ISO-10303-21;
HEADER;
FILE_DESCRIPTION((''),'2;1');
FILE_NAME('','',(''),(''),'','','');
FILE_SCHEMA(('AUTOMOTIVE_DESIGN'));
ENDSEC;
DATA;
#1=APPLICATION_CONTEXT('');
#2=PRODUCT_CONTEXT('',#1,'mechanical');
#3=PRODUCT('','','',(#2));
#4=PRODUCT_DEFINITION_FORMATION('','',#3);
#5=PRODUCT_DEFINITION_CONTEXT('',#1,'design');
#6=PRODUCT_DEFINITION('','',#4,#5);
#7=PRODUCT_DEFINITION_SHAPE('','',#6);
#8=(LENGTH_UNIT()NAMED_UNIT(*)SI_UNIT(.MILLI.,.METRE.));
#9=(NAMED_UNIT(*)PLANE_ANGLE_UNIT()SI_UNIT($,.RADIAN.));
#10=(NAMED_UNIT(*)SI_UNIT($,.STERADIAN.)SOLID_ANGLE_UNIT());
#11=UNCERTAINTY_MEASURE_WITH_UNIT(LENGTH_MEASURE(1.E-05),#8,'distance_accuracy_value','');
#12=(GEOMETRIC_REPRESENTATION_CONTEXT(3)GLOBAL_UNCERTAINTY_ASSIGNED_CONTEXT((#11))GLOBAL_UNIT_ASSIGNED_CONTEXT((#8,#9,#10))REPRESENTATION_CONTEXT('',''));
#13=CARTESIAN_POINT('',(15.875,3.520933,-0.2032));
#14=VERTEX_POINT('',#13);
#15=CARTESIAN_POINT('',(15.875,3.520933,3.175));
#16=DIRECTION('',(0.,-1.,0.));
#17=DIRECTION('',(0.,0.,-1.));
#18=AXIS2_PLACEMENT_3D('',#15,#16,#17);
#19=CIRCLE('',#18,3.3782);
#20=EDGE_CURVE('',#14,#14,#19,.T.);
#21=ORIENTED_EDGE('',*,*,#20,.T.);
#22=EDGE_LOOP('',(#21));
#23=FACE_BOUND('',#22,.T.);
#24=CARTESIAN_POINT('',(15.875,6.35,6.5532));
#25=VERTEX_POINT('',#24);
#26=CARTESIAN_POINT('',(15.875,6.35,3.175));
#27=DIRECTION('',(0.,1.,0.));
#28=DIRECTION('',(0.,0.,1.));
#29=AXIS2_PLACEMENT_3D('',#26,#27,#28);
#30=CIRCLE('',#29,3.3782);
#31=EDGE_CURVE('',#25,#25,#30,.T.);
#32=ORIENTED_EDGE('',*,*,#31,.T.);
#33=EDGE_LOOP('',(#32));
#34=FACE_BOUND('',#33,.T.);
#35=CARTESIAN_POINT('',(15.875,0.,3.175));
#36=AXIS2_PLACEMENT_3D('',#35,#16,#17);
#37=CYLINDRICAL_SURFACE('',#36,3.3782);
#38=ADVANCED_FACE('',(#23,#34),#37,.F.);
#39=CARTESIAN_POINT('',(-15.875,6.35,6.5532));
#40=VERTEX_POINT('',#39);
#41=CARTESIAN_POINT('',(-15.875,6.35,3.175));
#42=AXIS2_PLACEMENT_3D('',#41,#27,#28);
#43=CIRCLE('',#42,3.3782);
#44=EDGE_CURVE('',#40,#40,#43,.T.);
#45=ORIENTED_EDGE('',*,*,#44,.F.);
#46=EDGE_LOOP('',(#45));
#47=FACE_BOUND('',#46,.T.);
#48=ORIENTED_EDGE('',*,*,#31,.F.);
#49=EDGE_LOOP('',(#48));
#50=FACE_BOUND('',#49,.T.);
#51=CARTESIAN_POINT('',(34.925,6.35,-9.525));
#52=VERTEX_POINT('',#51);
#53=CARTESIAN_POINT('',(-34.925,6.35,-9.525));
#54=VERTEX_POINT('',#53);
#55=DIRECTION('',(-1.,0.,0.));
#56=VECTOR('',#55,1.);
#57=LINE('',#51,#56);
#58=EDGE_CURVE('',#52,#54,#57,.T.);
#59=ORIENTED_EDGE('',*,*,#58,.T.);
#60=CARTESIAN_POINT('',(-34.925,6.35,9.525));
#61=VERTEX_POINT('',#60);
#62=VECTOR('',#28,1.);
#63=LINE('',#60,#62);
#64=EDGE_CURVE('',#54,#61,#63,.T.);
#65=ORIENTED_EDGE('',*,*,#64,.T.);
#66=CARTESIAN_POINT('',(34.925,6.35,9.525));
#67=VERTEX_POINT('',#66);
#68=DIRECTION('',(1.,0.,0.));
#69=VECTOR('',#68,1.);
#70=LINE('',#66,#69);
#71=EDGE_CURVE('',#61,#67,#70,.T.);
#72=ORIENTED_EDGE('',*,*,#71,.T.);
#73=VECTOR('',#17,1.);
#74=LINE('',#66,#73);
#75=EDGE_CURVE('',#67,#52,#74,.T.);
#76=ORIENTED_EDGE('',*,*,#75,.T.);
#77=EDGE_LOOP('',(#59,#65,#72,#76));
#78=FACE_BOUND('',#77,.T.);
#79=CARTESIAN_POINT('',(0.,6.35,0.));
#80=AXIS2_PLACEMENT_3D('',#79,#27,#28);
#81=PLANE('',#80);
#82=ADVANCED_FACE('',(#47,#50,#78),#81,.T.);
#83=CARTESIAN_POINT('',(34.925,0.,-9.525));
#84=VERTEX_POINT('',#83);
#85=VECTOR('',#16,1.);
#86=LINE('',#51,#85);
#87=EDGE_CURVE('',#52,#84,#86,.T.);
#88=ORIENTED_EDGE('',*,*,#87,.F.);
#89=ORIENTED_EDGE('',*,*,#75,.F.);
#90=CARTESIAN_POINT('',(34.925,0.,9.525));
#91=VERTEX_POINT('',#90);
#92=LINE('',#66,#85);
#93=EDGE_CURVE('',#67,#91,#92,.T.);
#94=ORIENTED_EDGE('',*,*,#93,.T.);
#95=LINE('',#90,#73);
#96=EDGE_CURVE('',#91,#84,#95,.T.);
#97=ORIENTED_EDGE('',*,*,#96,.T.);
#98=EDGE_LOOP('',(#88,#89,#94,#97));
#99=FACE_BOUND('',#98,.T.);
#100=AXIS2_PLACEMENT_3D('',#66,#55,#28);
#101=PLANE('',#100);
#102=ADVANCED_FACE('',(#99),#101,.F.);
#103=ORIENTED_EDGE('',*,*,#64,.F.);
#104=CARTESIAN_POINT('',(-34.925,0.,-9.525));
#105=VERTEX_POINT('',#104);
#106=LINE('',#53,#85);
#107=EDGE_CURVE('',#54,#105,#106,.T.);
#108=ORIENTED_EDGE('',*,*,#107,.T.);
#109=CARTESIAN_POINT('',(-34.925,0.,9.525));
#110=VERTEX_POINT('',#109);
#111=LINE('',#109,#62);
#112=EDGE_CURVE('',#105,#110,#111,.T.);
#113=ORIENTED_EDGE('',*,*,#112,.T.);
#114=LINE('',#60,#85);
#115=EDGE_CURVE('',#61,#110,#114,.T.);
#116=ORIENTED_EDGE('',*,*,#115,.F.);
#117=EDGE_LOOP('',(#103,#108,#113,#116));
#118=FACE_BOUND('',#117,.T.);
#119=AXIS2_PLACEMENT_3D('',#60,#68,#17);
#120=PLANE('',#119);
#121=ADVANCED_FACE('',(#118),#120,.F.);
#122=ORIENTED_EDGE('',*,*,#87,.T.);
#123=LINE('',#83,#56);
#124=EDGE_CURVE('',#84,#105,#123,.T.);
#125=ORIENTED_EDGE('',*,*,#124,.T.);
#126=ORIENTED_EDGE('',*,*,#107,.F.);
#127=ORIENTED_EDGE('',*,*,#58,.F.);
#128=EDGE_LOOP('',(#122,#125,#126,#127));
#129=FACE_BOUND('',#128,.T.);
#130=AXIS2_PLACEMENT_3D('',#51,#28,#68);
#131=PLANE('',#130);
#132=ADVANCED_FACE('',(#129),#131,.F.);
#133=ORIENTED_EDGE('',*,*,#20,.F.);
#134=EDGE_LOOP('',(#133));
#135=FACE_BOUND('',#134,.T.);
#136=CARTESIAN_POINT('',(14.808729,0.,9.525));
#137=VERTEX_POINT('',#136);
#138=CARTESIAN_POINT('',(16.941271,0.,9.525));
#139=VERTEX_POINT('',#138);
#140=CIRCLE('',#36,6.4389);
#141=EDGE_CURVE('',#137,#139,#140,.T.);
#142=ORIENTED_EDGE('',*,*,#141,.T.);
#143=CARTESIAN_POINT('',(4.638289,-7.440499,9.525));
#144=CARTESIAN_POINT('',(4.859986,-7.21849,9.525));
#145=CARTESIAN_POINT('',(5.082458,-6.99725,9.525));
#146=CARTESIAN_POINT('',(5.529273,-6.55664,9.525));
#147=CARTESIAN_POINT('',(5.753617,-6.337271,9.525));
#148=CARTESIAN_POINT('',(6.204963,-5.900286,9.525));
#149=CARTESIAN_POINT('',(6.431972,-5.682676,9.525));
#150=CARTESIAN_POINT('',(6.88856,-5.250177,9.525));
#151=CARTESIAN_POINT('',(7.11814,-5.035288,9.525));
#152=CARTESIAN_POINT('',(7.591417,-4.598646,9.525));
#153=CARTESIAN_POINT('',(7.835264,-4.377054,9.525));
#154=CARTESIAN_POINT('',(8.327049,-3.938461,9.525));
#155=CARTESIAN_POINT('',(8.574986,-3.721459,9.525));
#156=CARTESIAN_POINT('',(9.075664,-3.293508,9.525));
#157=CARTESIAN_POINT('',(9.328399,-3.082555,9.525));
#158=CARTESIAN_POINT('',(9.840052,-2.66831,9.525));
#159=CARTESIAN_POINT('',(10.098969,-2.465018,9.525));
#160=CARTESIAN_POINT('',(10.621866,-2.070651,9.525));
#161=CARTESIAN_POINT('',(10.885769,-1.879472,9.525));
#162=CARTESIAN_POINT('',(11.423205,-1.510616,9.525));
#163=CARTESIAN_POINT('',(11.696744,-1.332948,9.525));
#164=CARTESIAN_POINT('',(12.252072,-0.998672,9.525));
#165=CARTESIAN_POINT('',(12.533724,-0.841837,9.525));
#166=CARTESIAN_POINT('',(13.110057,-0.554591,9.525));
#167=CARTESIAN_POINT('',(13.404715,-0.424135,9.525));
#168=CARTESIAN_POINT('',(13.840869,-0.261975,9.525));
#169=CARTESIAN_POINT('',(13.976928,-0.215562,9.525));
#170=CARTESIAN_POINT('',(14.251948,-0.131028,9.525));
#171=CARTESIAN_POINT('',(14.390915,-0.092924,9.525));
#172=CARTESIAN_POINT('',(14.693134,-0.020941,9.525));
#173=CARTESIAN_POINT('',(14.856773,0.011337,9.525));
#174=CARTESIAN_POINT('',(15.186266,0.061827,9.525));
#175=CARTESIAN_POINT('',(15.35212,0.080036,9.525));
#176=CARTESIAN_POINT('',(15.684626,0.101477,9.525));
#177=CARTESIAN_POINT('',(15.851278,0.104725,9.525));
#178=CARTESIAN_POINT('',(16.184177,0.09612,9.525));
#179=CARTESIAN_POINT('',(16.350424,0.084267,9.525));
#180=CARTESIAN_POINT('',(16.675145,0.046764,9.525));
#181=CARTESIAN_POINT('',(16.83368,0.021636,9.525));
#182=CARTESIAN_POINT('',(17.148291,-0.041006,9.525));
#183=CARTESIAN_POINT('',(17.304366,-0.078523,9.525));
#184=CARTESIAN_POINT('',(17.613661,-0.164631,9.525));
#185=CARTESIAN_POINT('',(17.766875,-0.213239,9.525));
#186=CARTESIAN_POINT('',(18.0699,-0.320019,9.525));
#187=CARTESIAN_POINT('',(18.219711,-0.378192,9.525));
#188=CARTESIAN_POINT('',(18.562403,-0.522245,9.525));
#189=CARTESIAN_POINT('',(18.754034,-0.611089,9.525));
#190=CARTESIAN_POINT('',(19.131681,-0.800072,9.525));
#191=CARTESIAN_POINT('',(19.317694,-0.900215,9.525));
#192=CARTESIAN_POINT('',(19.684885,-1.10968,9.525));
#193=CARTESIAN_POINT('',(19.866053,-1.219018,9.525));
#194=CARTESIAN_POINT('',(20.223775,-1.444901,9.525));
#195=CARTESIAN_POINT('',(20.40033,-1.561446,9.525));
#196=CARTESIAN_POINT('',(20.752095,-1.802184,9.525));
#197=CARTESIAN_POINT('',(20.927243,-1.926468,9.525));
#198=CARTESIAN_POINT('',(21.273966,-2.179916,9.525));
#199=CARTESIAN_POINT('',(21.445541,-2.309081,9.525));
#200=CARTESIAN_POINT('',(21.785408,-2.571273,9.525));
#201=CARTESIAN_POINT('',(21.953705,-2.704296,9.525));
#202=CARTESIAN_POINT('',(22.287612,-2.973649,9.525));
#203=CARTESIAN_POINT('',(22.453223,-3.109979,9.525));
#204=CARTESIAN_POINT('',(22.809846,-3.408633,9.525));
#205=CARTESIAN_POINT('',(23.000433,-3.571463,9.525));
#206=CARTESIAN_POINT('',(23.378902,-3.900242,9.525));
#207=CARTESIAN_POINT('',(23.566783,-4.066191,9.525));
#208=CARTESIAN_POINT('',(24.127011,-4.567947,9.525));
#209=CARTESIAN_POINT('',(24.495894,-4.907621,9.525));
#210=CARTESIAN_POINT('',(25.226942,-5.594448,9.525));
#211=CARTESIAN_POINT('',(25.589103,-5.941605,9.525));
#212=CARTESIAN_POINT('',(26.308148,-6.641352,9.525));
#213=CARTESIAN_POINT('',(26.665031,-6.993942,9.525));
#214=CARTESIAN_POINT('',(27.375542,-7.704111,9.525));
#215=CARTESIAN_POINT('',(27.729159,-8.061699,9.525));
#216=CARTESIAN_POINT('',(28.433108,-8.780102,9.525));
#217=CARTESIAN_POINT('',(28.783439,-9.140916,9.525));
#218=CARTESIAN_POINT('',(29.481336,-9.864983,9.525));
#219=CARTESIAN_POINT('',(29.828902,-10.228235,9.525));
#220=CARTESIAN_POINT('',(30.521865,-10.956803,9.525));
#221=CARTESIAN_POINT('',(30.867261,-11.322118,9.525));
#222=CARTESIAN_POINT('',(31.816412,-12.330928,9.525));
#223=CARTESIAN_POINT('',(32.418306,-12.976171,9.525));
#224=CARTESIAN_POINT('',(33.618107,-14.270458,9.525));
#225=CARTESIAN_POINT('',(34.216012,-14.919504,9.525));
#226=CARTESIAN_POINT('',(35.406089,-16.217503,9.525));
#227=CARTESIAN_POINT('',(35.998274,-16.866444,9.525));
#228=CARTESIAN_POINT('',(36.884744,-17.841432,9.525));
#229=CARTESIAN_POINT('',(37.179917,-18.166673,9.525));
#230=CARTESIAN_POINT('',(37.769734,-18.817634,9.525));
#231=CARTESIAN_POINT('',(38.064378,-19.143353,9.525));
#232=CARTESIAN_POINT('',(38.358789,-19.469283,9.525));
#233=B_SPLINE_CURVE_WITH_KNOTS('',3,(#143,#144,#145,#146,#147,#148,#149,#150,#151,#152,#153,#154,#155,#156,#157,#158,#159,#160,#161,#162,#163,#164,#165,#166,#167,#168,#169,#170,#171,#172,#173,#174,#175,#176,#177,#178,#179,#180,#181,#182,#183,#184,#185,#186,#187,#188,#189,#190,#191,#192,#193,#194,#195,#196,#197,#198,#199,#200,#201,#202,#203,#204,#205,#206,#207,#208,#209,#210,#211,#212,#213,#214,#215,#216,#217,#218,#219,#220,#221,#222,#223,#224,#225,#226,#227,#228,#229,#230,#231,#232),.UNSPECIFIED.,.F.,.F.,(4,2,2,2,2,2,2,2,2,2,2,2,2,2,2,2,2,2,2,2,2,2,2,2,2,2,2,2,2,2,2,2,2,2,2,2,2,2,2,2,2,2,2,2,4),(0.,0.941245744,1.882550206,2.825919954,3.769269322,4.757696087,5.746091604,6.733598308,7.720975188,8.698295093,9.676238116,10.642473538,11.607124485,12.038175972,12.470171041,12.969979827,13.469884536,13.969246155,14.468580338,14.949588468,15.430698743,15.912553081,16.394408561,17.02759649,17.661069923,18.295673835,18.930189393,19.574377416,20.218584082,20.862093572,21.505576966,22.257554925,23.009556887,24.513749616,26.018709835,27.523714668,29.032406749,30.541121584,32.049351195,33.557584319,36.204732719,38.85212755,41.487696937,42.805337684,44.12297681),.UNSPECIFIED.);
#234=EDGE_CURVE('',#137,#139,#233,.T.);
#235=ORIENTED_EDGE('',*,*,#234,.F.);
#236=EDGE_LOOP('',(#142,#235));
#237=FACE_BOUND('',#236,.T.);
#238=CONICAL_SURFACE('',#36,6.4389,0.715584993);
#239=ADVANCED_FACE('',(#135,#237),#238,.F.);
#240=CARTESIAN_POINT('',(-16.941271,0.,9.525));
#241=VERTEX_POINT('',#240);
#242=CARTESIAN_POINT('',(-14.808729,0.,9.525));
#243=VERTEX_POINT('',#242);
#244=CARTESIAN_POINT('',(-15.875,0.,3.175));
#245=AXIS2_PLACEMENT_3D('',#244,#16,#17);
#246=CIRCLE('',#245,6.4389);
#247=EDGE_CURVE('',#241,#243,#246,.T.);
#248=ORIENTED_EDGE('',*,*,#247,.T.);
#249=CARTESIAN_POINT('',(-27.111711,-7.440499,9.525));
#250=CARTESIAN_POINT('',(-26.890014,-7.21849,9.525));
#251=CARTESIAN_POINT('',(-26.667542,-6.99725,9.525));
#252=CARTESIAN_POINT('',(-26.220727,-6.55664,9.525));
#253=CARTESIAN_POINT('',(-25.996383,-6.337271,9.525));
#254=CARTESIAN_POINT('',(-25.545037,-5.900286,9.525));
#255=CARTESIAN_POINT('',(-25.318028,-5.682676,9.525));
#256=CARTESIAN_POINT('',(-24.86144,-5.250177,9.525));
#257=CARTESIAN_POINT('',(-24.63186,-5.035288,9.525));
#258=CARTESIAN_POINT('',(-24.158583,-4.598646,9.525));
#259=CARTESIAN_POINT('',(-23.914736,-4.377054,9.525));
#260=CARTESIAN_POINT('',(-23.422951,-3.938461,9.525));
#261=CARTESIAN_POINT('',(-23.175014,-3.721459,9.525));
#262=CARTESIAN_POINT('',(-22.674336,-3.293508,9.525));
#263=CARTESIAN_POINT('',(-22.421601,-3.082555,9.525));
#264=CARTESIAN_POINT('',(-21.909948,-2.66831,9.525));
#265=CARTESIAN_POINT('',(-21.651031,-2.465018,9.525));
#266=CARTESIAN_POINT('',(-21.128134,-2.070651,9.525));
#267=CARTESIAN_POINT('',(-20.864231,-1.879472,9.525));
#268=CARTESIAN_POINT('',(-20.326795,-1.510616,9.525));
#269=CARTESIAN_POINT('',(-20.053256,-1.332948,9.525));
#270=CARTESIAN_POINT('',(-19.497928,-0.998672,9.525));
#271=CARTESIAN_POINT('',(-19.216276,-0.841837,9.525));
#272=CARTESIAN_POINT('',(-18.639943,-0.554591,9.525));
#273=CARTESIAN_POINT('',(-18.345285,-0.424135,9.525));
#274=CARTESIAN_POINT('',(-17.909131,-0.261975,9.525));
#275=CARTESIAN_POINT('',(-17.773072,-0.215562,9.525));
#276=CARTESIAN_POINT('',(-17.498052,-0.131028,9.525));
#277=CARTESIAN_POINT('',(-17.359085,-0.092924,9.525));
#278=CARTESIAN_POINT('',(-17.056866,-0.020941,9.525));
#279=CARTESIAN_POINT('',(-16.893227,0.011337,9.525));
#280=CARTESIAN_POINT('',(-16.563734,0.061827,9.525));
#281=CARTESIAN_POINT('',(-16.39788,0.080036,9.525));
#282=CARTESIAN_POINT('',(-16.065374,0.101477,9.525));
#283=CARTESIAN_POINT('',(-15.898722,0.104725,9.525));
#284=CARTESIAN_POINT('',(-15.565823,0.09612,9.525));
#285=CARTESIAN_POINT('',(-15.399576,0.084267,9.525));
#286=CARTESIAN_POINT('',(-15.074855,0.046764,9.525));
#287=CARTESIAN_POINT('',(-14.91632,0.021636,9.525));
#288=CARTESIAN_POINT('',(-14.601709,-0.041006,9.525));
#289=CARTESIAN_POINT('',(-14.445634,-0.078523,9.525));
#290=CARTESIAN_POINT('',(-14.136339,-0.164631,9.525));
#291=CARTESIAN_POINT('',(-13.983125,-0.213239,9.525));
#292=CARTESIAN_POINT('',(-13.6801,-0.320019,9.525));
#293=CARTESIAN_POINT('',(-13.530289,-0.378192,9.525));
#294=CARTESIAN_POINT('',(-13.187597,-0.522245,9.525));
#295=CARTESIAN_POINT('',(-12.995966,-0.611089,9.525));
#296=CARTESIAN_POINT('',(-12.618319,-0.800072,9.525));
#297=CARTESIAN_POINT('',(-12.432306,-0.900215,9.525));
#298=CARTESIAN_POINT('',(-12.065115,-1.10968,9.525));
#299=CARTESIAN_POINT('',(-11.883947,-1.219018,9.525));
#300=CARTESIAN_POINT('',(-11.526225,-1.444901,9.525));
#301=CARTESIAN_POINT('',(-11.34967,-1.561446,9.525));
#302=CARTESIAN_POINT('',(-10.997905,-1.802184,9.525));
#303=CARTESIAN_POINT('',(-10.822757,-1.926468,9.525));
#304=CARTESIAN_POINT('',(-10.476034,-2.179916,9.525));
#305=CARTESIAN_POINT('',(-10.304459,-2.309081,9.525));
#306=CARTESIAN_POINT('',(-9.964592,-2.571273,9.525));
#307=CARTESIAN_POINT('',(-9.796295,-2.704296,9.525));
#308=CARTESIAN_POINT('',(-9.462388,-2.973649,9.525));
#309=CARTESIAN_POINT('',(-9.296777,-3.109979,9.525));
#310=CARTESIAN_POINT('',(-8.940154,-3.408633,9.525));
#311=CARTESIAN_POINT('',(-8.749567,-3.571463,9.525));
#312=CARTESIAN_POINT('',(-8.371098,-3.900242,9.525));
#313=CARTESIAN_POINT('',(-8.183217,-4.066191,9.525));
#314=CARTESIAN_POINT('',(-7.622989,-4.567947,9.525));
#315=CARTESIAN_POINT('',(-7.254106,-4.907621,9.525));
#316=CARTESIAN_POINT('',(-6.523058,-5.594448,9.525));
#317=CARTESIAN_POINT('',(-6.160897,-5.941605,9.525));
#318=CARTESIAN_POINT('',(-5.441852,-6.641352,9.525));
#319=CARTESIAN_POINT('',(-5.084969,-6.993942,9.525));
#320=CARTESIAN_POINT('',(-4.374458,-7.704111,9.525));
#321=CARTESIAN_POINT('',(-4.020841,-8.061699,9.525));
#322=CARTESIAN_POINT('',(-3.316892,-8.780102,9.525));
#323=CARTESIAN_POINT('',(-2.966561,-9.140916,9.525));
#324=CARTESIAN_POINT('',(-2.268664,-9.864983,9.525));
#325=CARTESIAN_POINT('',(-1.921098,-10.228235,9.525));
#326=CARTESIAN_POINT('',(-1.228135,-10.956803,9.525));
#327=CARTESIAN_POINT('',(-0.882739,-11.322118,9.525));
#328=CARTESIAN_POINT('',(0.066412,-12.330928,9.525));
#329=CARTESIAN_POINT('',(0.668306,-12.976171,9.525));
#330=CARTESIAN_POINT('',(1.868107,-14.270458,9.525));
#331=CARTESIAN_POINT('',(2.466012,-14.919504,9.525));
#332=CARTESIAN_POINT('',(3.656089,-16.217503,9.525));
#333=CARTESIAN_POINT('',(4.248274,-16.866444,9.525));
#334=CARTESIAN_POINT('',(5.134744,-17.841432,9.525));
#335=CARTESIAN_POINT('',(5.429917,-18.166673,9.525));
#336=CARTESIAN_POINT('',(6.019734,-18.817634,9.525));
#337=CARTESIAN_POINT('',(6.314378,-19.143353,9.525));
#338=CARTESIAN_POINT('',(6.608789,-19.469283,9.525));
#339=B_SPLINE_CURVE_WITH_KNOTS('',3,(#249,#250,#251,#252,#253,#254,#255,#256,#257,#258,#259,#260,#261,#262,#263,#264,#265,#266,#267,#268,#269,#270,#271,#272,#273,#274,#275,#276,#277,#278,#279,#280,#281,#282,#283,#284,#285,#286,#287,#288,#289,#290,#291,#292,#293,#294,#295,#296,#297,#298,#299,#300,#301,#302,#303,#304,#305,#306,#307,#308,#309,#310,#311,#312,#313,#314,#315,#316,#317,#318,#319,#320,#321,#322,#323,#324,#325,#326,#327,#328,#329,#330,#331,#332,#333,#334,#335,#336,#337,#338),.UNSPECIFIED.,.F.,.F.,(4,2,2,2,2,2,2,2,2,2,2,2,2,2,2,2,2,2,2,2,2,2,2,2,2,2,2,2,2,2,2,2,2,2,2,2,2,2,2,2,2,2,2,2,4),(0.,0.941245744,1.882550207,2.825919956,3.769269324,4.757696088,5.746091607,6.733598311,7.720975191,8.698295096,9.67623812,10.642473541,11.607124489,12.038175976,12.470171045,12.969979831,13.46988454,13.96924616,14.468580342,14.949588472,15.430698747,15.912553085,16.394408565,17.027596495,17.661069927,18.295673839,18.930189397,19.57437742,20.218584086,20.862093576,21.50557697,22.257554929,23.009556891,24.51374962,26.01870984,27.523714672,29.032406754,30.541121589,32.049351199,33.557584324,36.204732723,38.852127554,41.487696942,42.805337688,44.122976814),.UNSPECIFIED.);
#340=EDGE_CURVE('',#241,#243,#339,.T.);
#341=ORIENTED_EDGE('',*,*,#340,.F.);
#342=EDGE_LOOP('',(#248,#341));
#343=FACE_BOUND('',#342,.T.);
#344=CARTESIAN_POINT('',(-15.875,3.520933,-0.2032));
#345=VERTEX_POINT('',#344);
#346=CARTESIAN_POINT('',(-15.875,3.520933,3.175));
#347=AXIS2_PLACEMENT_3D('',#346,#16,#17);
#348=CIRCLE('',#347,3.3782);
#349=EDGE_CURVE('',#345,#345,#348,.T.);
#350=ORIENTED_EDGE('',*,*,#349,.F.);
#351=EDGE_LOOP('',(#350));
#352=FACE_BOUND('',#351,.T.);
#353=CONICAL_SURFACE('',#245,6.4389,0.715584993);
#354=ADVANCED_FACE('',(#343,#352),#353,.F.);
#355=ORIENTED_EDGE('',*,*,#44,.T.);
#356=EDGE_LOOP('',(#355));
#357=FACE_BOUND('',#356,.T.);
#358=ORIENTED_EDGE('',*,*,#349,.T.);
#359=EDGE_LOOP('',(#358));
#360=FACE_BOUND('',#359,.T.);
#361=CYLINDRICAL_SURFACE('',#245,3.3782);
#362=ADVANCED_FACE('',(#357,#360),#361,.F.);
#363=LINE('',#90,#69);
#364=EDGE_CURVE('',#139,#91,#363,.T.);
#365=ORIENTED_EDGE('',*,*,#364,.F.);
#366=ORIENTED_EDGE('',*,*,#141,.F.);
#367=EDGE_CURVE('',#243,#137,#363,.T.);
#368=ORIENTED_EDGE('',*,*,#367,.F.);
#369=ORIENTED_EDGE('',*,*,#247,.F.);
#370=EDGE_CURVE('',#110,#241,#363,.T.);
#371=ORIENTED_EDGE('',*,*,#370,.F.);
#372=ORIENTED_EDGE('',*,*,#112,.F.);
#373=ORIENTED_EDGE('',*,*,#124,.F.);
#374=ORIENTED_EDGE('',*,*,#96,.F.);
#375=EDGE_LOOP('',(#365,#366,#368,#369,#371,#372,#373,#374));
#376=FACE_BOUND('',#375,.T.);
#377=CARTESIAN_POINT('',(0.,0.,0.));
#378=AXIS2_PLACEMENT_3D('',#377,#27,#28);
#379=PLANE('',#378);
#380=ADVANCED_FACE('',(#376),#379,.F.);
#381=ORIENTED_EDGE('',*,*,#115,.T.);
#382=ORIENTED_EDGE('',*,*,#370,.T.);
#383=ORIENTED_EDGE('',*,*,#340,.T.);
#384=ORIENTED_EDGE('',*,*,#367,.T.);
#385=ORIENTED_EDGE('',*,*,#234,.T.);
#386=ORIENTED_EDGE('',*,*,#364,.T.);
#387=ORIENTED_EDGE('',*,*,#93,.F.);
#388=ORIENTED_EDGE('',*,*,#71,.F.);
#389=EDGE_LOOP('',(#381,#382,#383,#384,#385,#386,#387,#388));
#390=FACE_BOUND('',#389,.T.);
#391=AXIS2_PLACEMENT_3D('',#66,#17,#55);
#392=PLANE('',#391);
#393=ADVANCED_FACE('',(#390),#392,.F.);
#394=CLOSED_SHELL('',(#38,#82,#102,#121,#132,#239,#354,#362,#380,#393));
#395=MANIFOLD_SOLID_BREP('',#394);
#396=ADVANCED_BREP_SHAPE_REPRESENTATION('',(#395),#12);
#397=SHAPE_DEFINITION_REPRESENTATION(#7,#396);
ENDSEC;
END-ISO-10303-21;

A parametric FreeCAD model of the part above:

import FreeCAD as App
import Part
import Sketcher
from FreeCAD import Vector
Q = App.Units.Quantity

doc = App.newDocument("Part")
body = doc.addObject("PartDesign::Body", "Body")

sketch1 = body.newObject("Sketcher::SketchObject", "Sketch")
sketch1.AttachmentSupport = (doc.getObject("XZ_Plane"), [""])
sketch1.MapMode = "FlatFace"
sketch1.addGeometry([
    Part.LineSegment(Vector(-35, -10, 0), Vector(-35, 10, 0)),
    Part.LineSegment(Vector(-35, 10, 0), Vector(35, 10, 0)),
    Part.LineSegment(Vector(35, 10, 0), Vector(35, -10, 0)),
    Part.LineSegment(Vector(35, -10, 0), Vector(-35, -10, 0)),
], False)
sketch1.addConstraint([
    Sketcher.Constraint("Coincident", 0, 2, 1, 1),
    Sketcher.Constraint("Coincident", 1, 2, 2, 1),
    Sketcher.Constraint("Coincident", 2, 2, 3, 1),
    Sketcher.Constraint("Coincident", 3, 2, 0, 1),
    Sketcher.Constraint("Vertical", 0),
    Sketcher.Constraint("Horizontal", 1),
    Sketcher.Constraint("Vertical", 2),
    Sketcher.Constraint("Horizontal", 3),
    Sketcher.Constraint("Symmetric", 0, 2, 2, 2, -1, 1),
    Sketcher.Constraint("DistanceX", 1, 1, 1, 2, Q("2.75 in")),
    Sketcher.Constraint("DistanceY", 0, 1, 0, 2, Q("0.75 in")),
])
pad1 = body.newObject("PartDesign::Pad", "Pad")
pad1.Profile = sketch1
pad1.Length = Q("0.25 in")
pad1.Reversed = True

sketch2 = body.newObject("Sketcher::SketchObject", "Sketch001")
sketch2.AttachmentSupport = (doc.getObject("XZ_Plane"), [""])
sketch2.MapMode = "FlatFace"
sketch2.addGeometry([
    Part.Circle(Vector(-15.9, 3.2, 0), Vector(0, 0, 1), 3.4),
    Part.Circle(Vector(15.9, 3.2, 0), Vector(0, 0, 1), 3.4),
], False)
sketch2.addConstraint([
    Sketcher.Constraint("Equal", 0, 1),
    Sketcher.Constraint("Symmetric", 0, 3, 1, 3, -2),
    Sketcher.Constraint("Diameter", 0, Q("0.266 in")),
    Sketcher.Constraint("DistanceX", 0, 3, 1, 3, Q("1.25 in")),
    Sketcher.Constraint("DistanceY", -1, 1, 0, 3, Q("0.125 in")),
])
doc.recompute()
hole = body.newObject("PartDesign::Hole", "Hole")
hole.Profile = sketch2
hole.ThreadType = "None"
hole.Diameter = Q("0.266 in")
hole.DepthType = "Dimension"
hole.Depth = Q("0.6 in")
hole.DrillPoint = "Angled"
hole.DrillPointAngle = 118
hole.HoleCutType = "Countersink"
hole.HoleCutDiameter = Q("0.507 in")
hole.HoleCutCountersinkAngle = 82

doc.recompute()
